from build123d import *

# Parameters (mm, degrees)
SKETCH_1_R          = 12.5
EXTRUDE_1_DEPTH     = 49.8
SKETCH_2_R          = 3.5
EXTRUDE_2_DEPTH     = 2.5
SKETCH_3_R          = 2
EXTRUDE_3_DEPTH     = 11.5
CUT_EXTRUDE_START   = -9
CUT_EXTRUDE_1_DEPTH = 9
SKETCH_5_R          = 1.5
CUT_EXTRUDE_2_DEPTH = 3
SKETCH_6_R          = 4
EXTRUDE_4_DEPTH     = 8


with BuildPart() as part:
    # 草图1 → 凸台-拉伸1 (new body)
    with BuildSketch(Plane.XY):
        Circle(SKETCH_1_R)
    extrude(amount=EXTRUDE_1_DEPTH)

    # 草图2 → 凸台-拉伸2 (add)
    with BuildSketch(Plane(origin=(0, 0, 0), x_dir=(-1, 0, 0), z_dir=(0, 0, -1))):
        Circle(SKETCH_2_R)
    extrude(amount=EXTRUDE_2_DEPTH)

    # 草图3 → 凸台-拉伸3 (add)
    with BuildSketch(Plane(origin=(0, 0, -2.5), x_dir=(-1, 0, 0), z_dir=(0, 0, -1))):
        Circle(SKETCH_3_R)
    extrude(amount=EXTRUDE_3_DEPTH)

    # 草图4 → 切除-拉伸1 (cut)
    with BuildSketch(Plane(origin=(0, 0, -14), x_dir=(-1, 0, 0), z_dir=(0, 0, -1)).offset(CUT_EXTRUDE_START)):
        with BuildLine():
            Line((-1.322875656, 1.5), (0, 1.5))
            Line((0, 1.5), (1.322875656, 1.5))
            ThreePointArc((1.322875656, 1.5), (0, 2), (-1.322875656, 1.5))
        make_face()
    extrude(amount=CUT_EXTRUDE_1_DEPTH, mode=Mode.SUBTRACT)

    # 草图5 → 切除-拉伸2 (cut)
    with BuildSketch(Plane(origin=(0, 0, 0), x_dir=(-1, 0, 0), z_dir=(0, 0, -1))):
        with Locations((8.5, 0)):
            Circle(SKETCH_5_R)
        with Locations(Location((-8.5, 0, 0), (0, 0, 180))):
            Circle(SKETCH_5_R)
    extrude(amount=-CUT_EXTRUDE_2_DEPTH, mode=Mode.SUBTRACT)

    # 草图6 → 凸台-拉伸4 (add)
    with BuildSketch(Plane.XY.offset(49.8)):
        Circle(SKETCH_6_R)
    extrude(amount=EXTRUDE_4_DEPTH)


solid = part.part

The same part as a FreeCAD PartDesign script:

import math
import FreeCAD as App
import Part
import Sketcher

doc = App.newDocument("Part")
body = doc.addObject("PartDesign::Body", "Body")

sketch1 = body.newObject("Sketcher::SketchObject", "Sketch")
sketch1.AttachmentSupport = (doc.getObject("XY_Plane"), [""])
sketch1.MapMode = "FlatFace"
sketch1.addGeometry(Part.Circle(App.Vector(0, 0, 0), App.Vector(0, 0, 1), 12), False)
sketch1.addConstraint([
    Sketcher.Constraint("Coincident", 0, 3, -1, 1),
    Sketcher.Constraint("Diameter", 0, 25.0),
])
pad1 = body.newObject("PartDesign::Pad", "Pad")
pad1.Profile = sketch1
pad1.Length = 49.8

sketch2 = body.newObject("Sketcher::SketchObject", "Sketch001")
sketch2.AttachmentSupport = (doc.getObject("XY_Plane"), [""])
sketch2.MapMode = "FlatFace"
sketch2.addGeometry(Part.Circle(App.Vector(0, 0, 0), App.Vector(0, 0, 1), 3.5), False)
sketch2.addConstraint([
    Sketcher.Constraint("Coincident", 0, 3, -1, 1),
    Sketcher.Constraint("Diameter", 0, 7.0),
])
pad2 = body.newObject("PartDesign::Pad", "Pad001")
pad2.Profile = sketch2
pad2.Length = 2.5
pad2.Reversed = True

sketch3 = body.newObject("Sketcher::SketchObject", "Sketch002")
sketch3.AttachmentSupport = (doc.getObject("XY_Plane"), [""])
sketch3.MapMode = "FlatFace"
sketch3.AttachmentOffset = App.Placement(App.Vector(0, 0, -2.5), App.Rotation())
sketch3.addGeometry(Part.Circle(App.Vector(0, 0, 0), App.Vector(0, 0, 1), 2), False)
sketch3.addConstraint([
    Sketcher.Constraint("Coincident", 0, 3, -1, 1),
    Sketcher.Constraint("Diameter", 0, 4.0),
])
pad3 = body.newObject("PartDesign::Pad", "Pad002")
pad3.Profile = sketch3
pad3.Length = 11.5
pad3.Reversed = True

sketch4 = body.newObject("Sketcher::SketchObject", "Sketch003")
sketch4.AttachmentSupport = (doc.getObject("XY_Plane"), [""])
sketch4.MapMode = "FlatFace"
sketch4.AttachmentOffset = App.Placement(App.Vector(0, 0, -5), App.Rotation())
sketch4.addGeometry([
    Part.LineSegment(App.Vector(1.3, 1.5, 0), App.Vector(-1.3, 1.5, 0)),
    Part.ArcOfCircle(Part.Circle(App.Vector(0, 0, 0), App.Vector(0, 0, 1), 2), math.radians(49), math.radians(131)),
], False)
sketch4.addConstraint([
    Sketcher.Constraint("Coincident", 0, 1, 1, 1),
    Sketcher.Constraint("Coincident", 1, 2, 0, 2),
    Sketcher.Constraint("Horizontal", 0),
    Sketcher.Constraint("Coincident", 1, 3, -1, 1),
    Sketcher.Constraint("Radius", 1, 2.0),
    Sketcher.Constraint("DistanceY", -1, 1, 0, 1, 1.5),
])
pocket1 = body.newObject("PartDesign::Pocket", "Pocket")
pocket1.Profile = sketch4
pocket1.Length = 9

sketch5 = body.newObject("Sketcher::SketchObject", "Sketch004")
sketch5.AttachmentSupport = (doc.getObject("XY_Plane"), [""])
sketch5.MapMode = "FlatFace"
sketch5.addGeometry([
    Part.Circle(App.Vector(-8.5, 0, 0), App.Vector(0, 0, 1), 1.5),
    Part.Circle(App.Vector(8.5, 0, 0), App.Vector(0, 0, 1), 1.5),
], False)
sketch5.addConstraint([
    Sketcher.Constraint("Equal", 0, 1),
    Sketcher.Constraint("Symmetric", 0, 3, 1, 3, -1, 1),
    Sketcher.Constraint("PointOnObject", 0, 3, -1),
    Sketcher.Constraint("Diameter", 0, 3.0),
    Sketcher.Constraint("DistanceX", 0, 3, 1, 3, 17.0),
])
pocket2 = body.newObject("PartDesign::Pocket", "Pocket001")
pocket2.Profile = sketch5
pocket2.Length = 3
pocket2.Reversed = True

sketch6 = body.newObject("Sketcher::SketchObject", "Sketch005")
sketch6.AttachmentSupport = (doc.getObject("XY_Plane"), [""])
sketch6.MapMode = "FlatFace"
sketch6.AttachmentOffset = App.Placement(App.Vector(0, 0, 49.8), App.Rotation())
sketch6.addGeometry(Part.Circle(App.Vector(0, 0, 0), App.Vector(0, 0, 1), 4), False)
sketch6.addConstraint([
    Sketcher.Constraint("Coincident", 0, 3, -1, 1),
    Sketcher.Constraint("Diameter", 0, 8.0),
])
pad4 = body.newObject("PartDesign::Pad", "Pad003")
pad4.Profile = sketch6
pad4.Length = 8

doc.recompute()
